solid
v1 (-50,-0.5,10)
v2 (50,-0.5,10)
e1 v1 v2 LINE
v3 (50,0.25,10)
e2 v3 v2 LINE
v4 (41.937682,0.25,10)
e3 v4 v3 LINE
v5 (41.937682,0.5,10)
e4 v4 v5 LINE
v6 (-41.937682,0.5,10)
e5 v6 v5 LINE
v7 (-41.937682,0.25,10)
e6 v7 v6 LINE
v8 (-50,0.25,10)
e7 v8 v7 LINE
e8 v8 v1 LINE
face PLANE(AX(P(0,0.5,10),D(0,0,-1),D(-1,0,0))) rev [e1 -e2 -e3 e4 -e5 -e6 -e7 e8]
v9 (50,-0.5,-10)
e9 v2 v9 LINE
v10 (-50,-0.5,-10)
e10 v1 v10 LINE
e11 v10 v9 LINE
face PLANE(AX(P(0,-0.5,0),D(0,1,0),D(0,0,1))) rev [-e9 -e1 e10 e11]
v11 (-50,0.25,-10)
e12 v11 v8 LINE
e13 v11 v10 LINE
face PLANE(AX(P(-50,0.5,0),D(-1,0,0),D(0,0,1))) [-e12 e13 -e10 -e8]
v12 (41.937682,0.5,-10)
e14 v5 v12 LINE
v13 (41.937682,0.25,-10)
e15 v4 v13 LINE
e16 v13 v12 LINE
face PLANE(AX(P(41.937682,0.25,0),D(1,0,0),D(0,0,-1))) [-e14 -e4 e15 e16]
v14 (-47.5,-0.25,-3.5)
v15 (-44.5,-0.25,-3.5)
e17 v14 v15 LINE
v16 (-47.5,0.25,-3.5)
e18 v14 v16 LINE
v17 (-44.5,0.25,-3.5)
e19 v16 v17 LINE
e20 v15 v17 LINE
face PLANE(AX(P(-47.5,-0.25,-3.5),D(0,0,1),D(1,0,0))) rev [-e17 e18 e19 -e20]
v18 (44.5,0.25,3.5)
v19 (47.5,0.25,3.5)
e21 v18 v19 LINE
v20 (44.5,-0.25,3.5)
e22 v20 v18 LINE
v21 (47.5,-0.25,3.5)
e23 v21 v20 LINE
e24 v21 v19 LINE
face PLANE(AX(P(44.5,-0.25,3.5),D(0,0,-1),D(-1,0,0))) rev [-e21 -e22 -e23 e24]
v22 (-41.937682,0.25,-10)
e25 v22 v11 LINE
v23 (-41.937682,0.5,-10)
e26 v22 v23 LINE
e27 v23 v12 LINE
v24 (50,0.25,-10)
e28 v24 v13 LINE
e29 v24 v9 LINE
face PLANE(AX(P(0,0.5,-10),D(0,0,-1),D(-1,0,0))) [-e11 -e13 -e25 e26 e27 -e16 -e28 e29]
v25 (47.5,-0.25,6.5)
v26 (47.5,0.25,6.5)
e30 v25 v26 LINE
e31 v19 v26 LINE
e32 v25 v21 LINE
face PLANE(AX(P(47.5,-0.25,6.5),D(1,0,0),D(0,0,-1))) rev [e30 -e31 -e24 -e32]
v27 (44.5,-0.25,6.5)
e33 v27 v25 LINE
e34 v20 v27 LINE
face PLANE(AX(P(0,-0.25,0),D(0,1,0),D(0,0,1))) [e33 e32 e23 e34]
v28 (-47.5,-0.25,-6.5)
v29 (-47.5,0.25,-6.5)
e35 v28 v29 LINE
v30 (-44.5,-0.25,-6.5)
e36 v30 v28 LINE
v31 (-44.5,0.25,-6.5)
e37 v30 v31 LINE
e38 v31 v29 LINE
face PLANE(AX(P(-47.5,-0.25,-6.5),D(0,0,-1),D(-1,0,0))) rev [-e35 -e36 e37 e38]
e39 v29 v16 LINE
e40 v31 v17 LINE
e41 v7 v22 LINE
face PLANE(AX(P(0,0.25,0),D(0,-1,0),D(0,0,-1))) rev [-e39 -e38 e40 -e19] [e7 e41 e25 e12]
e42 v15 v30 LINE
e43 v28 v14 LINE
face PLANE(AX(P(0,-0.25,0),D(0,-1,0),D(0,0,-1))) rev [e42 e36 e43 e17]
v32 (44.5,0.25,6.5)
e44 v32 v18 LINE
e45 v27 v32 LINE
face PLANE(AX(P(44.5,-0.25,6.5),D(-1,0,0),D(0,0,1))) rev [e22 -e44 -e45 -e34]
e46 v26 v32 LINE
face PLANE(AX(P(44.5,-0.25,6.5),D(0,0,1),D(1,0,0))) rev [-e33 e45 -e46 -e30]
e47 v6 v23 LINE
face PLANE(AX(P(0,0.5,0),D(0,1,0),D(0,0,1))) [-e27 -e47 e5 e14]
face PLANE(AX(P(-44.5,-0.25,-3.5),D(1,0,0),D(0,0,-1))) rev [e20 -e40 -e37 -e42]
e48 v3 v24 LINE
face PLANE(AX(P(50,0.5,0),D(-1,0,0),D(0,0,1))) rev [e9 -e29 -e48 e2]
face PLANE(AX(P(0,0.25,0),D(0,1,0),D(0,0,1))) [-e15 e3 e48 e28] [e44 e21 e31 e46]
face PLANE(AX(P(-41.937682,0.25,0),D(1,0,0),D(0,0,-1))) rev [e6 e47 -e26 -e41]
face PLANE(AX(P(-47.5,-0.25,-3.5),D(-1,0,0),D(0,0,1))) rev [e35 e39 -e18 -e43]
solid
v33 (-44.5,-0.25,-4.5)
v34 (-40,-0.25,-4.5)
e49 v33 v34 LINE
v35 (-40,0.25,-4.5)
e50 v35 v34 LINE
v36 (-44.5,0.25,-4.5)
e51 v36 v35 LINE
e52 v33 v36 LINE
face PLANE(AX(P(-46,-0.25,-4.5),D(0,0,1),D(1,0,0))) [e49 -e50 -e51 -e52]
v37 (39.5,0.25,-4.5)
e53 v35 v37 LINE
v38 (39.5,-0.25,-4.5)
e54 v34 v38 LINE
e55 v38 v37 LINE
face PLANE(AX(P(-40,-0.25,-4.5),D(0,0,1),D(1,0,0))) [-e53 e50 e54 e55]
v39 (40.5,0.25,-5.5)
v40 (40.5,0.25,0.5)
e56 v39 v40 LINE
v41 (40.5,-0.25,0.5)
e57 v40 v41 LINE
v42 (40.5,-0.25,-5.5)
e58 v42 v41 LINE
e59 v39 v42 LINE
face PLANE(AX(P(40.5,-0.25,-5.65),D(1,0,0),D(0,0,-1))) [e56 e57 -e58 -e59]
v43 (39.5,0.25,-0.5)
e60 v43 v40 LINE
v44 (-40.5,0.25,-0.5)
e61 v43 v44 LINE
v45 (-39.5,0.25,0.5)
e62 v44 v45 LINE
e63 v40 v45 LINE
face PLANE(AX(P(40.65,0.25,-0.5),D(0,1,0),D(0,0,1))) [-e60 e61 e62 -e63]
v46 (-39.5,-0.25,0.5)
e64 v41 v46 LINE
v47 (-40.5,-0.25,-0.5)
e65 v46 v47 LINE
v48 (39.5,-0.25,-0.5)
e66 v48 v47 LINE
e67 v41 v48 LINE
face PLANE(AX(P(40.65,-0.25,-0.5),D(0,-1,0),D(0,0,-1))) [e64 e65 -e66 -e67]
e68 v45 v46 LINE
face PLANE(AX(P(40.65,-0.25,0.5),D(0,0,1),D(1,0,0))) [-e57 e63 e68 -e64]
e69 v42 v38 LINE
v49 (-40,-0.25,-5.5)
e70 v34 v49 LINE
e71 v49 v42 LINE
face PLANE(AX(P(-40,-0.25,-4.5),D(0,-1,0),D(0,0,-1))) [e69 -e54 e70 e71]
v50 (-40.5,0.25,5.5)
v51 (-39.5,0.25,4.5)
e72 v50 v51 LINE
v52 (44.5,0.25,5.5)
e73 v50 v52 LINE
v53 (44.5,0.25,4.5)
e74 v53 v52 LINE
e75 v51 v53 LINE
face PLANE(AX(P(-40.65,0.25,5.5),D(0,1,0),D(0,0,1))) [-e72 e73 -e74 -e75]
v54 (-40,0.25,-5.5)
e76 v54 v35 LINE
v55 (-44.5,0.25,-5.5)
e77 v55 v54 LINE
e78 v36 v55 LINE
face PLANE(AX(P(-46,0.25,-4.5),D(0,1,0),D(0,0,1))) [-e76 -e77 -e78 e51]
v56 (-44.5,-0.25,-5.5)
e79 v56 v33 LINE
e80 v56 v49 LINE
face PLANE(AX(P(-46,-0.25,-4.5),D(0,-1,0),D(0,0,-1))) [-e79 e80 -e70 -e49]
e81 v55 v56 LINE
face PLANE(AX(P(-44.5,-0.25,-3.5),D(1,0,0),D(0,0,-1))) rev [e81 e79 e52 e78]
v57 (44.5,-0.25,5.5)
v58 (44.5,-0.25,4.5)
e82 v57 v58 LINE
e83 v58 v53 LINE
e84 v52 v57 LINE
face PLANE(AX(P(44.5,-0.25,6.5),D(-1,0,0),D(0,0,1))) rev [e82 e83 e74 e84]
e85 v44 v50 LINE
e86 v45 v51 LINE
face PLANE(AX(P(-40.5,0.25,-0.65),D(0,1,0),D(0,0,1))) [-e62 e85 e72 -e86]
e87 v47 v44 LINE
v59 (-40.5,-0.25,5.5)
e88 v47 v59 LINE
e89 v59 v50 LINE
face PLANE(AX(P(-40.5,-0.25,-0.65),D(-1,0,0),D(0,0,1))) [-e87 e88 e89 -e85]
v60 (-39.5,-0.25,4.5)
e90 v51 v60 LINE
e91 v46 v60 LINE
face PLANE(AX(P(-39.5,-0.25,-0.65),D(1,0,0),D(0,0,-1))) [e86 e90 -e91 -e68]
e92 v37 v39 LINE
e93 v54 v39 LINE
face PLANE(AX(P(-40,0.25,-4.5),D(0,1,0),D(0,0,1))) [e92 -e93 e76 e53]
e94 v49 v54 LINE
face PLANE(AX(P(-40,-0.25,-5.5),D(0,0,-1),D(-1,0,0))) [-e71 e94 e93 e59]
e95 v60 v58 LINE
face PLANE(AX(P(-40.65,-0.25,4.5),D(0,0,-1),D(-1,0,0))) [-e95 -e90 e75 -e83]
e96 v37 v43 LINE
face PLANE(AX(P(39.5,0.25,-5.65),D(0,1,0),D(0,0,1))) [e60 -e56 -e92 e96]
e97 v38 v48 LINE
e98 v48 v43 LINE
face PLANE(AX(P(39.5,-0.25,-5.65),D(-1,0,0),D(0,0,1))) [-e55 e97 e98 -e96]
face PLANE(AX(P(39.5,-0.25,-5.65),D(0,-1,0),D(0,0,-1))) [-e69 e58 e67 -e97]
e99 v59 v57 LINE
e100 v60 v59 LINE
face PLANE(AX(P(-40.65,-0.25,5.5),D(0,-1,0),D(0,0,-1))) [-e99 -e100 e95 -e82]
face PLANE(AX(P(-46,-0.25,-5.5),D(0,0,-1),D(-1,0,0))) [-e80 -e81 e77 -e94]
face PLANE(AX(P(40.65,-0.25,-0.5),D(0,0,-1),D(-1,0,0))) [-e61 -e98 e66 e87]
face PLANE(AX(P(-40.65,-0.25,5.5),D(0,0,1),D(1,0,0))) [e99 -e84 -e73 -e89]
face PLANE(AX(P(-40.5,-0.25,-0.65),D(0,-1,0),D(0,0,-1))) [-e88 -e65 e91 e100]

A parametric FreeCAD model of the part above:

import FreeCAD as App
import Part
import Sketcher
from FreeCAD import Vector
Q = App.Units.Quantity


def add_polygon(sketch, points):
    """Adds a closed chain of lines whose ends are joined by coincident constraints."""
    first, n = sketch.GeometryCount, len(points)
    for a, b in zip(points, points[1:] + points[:1]):
        sketch.addGeometry(Part.LineSegment(App.Vector(*a, 0), App.Vector(*b, 0)), False)
    for i in range(n):
        sketch.addConstraint(Sketcher.Constraint("Coincident", first + i, 2, first + (i + 1) % n, 1))

doc = App.newDocument("Part")
body = doc.addObject("PartDesign::Body", "Body")

# Sketch on XZ plane
sketch1 = doc.addObject("Sketcher::SketchObject", "Sketch")
body.addObject(sketch1)
sketch1.AttachmentSupport = (doc.XZ_Plane, [""])
sketch1.MapMode = "FlatFace"
add_polygon(sketch1, [(-50, -10), (-50, 10), (50, 10), (50, -10)])  # lines 0-3
sketch1.addConstraint([
    Sketcher.Constraint("Vertical", 0),
    Sketcher.Constraint("Horizontal", 1),
    Sketcher.Constraint("Vertical", 2),
    Sketcher.Constraint("Horizontal", 3),
    Sketcher.Constraint("Symmetric", 0, 2, 2, 2, -1, 1),
    Sketcher.Constraint("DistanceX", 1, 1, 1, 2, Q("100 mm")),
    Sketcher.Constraint("DistanceY", 0, 1, 0, 2, Q("20 mm")),
])
pad1 = doc.addObject("PartDesign::Pad", "Pad")
body.addObject(pad1)
pad1.Profile = sketch1
pad1.Length = 1
pad1.Midplane = True
body2 = doc.addObject("PartDesign::Body", "Body001")

# Sketch on YZ plane
sketch2 = doc.addObject("Sketcher::SketchObject", "Sketch001")
body2.addObject(sketch2)
sketch2.AttachmentSupport = (doc.getObject("YZ_Plane001"), [""])
sketch2.MapMode = "FlatFace"
sketch2.AttachmentOffset = App.Placement(Vector(0, 0, 40), App.Rotation())
add_polygon(sketch2, [(0.2, 5.5), (-0.2, 5.5), (-0.2, 4.5), (0.2, 4.5)])  # lines 0-3
sketch2.addConstraint([
    Sketcher.Constraint("Horizontal", 0),
    Sketcher.Constraint("Vertical", 1),
    Sketcher.Constraint("Horizontal", 2),
    Sketcher.Constraint("Vertical", 3),
    Sketcher.Constraint("DistanceY", 1, 2, 1, 1, Q("1 mm")),
    Sketcher.Constraint("DistanceX", 0, 2, 0, 1, Q("0.5 mm")),
    Sketcher.Constraint("DistanceY", -1, 1, 0, 2, Q("5.5 mm")),
    Sketcher.Constraint("DistanceX", 0, 2, -1, 1, Q("0.25 mm")),
])

# Sketch on XZ plane
sketch3 = doc.addObject("Sketcher::SketchObject", "Sketch002")
body2.addObject(sketch3)
sketch3.AttachmentSupport = (doc.getObject("XZ_Plane001"), [""])
sketch3.MapMode = "FlatFace"
sketch3.addGeometry([
    Part.LineSegment(Vector(-46, -5, 0), Vector(-40, -5, 0)),  # 0
    Part.LineSegment(Vector(-40, -5, 0), Vector(40, -5, 0)),  # 1
    Part.LineSegment(Vector(40, -5, 0), Vector(40, 0, 0)),  # 2
    Part.LineSegment(Vector(40, 0, 0), Vector(-40, 0, 0)),  # 3
    Part.LineSegment(Vector(-40, 0, 0), Vector(-40, 5, 0)),  # 4
    Part.LineSegment(Vector(-40, 5, 0), Vector(46, 5, 0)),  # 5
], False)
sketch3.addConstraint([
    Sketcher.Constraint("Coincident", 0, 2, 1, 1),
    Sketcher.Constraint("Coincident", 1, 2, 2, 1),
    Sketcher.Constraint("Coincident", 2, 2, 3, 1),
    Sketcher.Constraint("Coincident", 3, 2, 4, 1),
    Sketcher.Constraint("Coincident", 4, 2, 5, 1),
    Sketcher.Constraint("Horizontal", 0),
    Sketcher.Constraint("Horizontal", 1),
    Sketcher.Constraint("Vertical", 2),
    Sketcher.Constraint("Horizontal", 3),
    Sketcher.Constraint("Vertical", 4),
    Sketcher.Constraint("Horizontal", 5),
    Sketcher.Constraint("Symmetric", 2, 2, 3, 2, -1, 1),
    Sketcher.Constraint("Symmetric", 0, 1, 5, 2, -1, 1),
    Sketcher.Constraint("Vertical", 0, 2, 3, 2),
    Sketcher.Constraint("DistanceX", 0, 1, 0, 2, Q("6 mm")),
    Sketcher.Constraint("DistanceX", 1, 1, 1, 2, Q("80 mm")),
    Sketcher.Constraint("DistanceY", 2, 1, 2, 2, Q("5 mm")),
])
doc.recompute()

additivepipe = doc.addObject("PartDesign::AdditivePipe", "AdditivePipe")
body2.addObject(additivepipe)
additivepipe.Profile = sketch2
additivepipe.Spine = (sketch3, ["Edge1", "Edge2", "Edge3", "Edge4", "Edge5", "Edge6"])
additivepipe.Transition = "Right corner"
body3 = doc.addObject("PartDesign::Body", "Body002")
body3.AllowCompound = True

# Sketch on XZ plane
sketch4 = doc.addObject("Sketcher::SketchObject", "Sketch003")
body3.addObject(sketch4)
sketch4.AttachmentSupport = (doc.getObject("XZ_Plane002"), [""])
sketch4.MapMode = "FlatFace"
sketch4.AttachmentOffset = App.Placement(Vector(0, 0, -0.5), App.Rotation())
add_polygon(sketch4, [(-47.5, -6.5), (-47.5, -3.5), (-44.5, -3.5), (-44.5, -6.5)])  # lines 0-3
add_polygon(sketch4, [(44.5, 3.5), (44.5, 6.5), (47.5, 6.5), (47.5, 3.5)])  # lines 4-7
sketch4.addConstraint([
    Sketcher.Constraint("Vertical", 0),
    Sketcher.Constraint("Horizontal", 1),
    Sketcher.Constraint("Vertical", 2),
    Sketcher.Constraint("Horizontal", 3),
    Sketcher.Constraint("Vertical", 4),
    Sketcher.Constraint("Horizontal", 5),
    Sketcher.Constraint("Vertical", 6),
    Sketcher.Constraint("Horizontal", 7),
    Sketcher.Constraint("Symmetric", 2, 2, 4, 2, -1, 1),
    Sketcher.Constraint("Symmetric", 0, 2, 6, 2, -1, 1),
    Sketcher.Constraint("Equal", 7, 0),
    Sketcher.Constraint("DistanceX", 1, 1, 1, 2, Q("3 mm")),
    Sketcher.Constraint("DistanceX", 1, 2, 4, 2, Q("89 mm")),
    Sketcher.Constraint("DistanceY", 1, 2, 4, 2, Q("10 mm")),
])
pad2 = doc.addObject("PartDesign::Pad", "Pad001")
body3.addObject(pad2)
pad2.Profile = sketch4
pad2.Length = 0.75
doc.recompute()

body4 = doc.addObject("PartDesign::Body", "Body003")
body4.BaseFeature = body3
boolean = doc.addObject("PartDesign::Boolean", "Boolean")
body.addObject(boolean)
boolean.Type = "Cut"
boolean.addObjects([body4])
doc.recompute()

# Sketch on XZ plane
sketch5 = doc.addObject("Sketcher::SketchObject", "Sketch004")
body.addObject(sketch5)
sketch5.AttachmentSupport = (doc.XZ_Plane, [""])
sketch5.MapMode = "FlatFace"
sketch5.AttachmentOffset = App.Placement(Vector(0, 0, -0.5), App.Rotation())
add_polygon(sketch5, [(44, -10), (44, 10), (50, 10), (50, -10)])  # lines 0-3
add_polygon(sketch5, [(-50, -10), (-50, 10), (-44, 10), (-44, -10)])  # lines 4-7
sketch5.addConstraint([
    Sketcher.Constraint("Vertical", 0),
    Sketcher.Constraint("Horizontal", 1),
    Sketcher.Constraint("Vertical", 2),
    Sketcher.Constraint("Horizontal", 3),
    Sketcher.Constraint("Vertical", 4),
    Sketcher.Constraint("Horizontal", 5),
    Sketcher.Constraint("Vertical", 6),
    Sketcher.Constraint("Horizontal", 7),
    Sketcher.Constraint("Symmetric", 2, 2, 4, 2, -1, 1),
    Sketcher.Constraint("Symmetric", 0, 2, 6, 2, -1, 1),
    Sketcher.Constraint("Horizontal", 1, 2, 4, 2),
    Sketcher.Constraint("DistanceY", 0, 1, 0, 2, Q("20 mm")),
    Sketcher.Constraint("DistanceX", 1, 1, 1, 2, Q("5.5 mm")),
    Sketcher.Constraint("DistanceX", -1, 1, 1, 2, Q("50 mm")),
])
pocket1 = doc.addObject("PartDesign::Pocket", "Pocket")
body.addObject(pocket1)
pocket1.Profile = sketch5
pocket1.Length = 0.25
pocket1.Reversed = True

# Sketch on XZ plane
sketch6 = doc.addObject("Sketcher::SketchObject", "Sketch005")
body.addObject(sketch6)
sketch6.AttachmentSupport = (doc.XZ_Plane, [""])
sketch6.MapMode = "FlatFace"
sketch6.AttachmentOffset = App.Placement(Vector(0, 0, -0.5), App.Rotation())
add_polygon(sketch6, [(-44.5, -10), (-44.5, 10), (-41.9, 10), (-41.9, -10)])  # lines 0-3
add_polygon(sketch6, [(41.9, -10), (41.9, 10), (44.5, 10), (44.5, -10)])  # lines 4-7
sketch6.addConstraint([
    Sketcher.Constraint("Vertical", 0),
    Sketcher.Constraint("Horizontal", 1),
    Sketcher.Constraint("Vertical", 2),
    Sketcher.Constraint("Horizontal", 3),
    Sketcher.Constraint("Vertical", 4),
    Sketcher.Constraint("Horizontal", 5),
    Sketcher.Constraint("Vertical", 6),
    Sketcher.Constraint("Horizontal", 7),
    Sketcher.Constraint("Symmetric", 2, 2, 4, 2, -1, 1),
    Sketcher.Constraint("Symmetric", 0, 2, 6, 2, -1, 1),
    Sketcher.Constraint("Horizontal", 1, 2, 4, 2),
    Sketcher.Constraint("DistanceY", 0, 1, 0, 2, Q("20 mm")),
    Sketcher.Constraint("DistanceX", 0, 2, 5, 2, Q("89 mm")),
    Sketcher.Constraint("DistanceX", 1, 1, 1, 2, Q("2.562318 mm")),
])
pocket2 = doc.addObject("PartDesign::Pocket", "Pocket001")
body.addObject(pocket2)
pocket2.Profile = sketch6
pocket2.Length = 0.25
pocket2.Reversed = True
doc.recompute()

boolean2 = doc.addObject("PartDesign::Boolean", "Boolean001")
body2.addObject(boolean2)
boolean2.Type = "Cut"
boolean2.addObjects([body3])

doc.recompute()
